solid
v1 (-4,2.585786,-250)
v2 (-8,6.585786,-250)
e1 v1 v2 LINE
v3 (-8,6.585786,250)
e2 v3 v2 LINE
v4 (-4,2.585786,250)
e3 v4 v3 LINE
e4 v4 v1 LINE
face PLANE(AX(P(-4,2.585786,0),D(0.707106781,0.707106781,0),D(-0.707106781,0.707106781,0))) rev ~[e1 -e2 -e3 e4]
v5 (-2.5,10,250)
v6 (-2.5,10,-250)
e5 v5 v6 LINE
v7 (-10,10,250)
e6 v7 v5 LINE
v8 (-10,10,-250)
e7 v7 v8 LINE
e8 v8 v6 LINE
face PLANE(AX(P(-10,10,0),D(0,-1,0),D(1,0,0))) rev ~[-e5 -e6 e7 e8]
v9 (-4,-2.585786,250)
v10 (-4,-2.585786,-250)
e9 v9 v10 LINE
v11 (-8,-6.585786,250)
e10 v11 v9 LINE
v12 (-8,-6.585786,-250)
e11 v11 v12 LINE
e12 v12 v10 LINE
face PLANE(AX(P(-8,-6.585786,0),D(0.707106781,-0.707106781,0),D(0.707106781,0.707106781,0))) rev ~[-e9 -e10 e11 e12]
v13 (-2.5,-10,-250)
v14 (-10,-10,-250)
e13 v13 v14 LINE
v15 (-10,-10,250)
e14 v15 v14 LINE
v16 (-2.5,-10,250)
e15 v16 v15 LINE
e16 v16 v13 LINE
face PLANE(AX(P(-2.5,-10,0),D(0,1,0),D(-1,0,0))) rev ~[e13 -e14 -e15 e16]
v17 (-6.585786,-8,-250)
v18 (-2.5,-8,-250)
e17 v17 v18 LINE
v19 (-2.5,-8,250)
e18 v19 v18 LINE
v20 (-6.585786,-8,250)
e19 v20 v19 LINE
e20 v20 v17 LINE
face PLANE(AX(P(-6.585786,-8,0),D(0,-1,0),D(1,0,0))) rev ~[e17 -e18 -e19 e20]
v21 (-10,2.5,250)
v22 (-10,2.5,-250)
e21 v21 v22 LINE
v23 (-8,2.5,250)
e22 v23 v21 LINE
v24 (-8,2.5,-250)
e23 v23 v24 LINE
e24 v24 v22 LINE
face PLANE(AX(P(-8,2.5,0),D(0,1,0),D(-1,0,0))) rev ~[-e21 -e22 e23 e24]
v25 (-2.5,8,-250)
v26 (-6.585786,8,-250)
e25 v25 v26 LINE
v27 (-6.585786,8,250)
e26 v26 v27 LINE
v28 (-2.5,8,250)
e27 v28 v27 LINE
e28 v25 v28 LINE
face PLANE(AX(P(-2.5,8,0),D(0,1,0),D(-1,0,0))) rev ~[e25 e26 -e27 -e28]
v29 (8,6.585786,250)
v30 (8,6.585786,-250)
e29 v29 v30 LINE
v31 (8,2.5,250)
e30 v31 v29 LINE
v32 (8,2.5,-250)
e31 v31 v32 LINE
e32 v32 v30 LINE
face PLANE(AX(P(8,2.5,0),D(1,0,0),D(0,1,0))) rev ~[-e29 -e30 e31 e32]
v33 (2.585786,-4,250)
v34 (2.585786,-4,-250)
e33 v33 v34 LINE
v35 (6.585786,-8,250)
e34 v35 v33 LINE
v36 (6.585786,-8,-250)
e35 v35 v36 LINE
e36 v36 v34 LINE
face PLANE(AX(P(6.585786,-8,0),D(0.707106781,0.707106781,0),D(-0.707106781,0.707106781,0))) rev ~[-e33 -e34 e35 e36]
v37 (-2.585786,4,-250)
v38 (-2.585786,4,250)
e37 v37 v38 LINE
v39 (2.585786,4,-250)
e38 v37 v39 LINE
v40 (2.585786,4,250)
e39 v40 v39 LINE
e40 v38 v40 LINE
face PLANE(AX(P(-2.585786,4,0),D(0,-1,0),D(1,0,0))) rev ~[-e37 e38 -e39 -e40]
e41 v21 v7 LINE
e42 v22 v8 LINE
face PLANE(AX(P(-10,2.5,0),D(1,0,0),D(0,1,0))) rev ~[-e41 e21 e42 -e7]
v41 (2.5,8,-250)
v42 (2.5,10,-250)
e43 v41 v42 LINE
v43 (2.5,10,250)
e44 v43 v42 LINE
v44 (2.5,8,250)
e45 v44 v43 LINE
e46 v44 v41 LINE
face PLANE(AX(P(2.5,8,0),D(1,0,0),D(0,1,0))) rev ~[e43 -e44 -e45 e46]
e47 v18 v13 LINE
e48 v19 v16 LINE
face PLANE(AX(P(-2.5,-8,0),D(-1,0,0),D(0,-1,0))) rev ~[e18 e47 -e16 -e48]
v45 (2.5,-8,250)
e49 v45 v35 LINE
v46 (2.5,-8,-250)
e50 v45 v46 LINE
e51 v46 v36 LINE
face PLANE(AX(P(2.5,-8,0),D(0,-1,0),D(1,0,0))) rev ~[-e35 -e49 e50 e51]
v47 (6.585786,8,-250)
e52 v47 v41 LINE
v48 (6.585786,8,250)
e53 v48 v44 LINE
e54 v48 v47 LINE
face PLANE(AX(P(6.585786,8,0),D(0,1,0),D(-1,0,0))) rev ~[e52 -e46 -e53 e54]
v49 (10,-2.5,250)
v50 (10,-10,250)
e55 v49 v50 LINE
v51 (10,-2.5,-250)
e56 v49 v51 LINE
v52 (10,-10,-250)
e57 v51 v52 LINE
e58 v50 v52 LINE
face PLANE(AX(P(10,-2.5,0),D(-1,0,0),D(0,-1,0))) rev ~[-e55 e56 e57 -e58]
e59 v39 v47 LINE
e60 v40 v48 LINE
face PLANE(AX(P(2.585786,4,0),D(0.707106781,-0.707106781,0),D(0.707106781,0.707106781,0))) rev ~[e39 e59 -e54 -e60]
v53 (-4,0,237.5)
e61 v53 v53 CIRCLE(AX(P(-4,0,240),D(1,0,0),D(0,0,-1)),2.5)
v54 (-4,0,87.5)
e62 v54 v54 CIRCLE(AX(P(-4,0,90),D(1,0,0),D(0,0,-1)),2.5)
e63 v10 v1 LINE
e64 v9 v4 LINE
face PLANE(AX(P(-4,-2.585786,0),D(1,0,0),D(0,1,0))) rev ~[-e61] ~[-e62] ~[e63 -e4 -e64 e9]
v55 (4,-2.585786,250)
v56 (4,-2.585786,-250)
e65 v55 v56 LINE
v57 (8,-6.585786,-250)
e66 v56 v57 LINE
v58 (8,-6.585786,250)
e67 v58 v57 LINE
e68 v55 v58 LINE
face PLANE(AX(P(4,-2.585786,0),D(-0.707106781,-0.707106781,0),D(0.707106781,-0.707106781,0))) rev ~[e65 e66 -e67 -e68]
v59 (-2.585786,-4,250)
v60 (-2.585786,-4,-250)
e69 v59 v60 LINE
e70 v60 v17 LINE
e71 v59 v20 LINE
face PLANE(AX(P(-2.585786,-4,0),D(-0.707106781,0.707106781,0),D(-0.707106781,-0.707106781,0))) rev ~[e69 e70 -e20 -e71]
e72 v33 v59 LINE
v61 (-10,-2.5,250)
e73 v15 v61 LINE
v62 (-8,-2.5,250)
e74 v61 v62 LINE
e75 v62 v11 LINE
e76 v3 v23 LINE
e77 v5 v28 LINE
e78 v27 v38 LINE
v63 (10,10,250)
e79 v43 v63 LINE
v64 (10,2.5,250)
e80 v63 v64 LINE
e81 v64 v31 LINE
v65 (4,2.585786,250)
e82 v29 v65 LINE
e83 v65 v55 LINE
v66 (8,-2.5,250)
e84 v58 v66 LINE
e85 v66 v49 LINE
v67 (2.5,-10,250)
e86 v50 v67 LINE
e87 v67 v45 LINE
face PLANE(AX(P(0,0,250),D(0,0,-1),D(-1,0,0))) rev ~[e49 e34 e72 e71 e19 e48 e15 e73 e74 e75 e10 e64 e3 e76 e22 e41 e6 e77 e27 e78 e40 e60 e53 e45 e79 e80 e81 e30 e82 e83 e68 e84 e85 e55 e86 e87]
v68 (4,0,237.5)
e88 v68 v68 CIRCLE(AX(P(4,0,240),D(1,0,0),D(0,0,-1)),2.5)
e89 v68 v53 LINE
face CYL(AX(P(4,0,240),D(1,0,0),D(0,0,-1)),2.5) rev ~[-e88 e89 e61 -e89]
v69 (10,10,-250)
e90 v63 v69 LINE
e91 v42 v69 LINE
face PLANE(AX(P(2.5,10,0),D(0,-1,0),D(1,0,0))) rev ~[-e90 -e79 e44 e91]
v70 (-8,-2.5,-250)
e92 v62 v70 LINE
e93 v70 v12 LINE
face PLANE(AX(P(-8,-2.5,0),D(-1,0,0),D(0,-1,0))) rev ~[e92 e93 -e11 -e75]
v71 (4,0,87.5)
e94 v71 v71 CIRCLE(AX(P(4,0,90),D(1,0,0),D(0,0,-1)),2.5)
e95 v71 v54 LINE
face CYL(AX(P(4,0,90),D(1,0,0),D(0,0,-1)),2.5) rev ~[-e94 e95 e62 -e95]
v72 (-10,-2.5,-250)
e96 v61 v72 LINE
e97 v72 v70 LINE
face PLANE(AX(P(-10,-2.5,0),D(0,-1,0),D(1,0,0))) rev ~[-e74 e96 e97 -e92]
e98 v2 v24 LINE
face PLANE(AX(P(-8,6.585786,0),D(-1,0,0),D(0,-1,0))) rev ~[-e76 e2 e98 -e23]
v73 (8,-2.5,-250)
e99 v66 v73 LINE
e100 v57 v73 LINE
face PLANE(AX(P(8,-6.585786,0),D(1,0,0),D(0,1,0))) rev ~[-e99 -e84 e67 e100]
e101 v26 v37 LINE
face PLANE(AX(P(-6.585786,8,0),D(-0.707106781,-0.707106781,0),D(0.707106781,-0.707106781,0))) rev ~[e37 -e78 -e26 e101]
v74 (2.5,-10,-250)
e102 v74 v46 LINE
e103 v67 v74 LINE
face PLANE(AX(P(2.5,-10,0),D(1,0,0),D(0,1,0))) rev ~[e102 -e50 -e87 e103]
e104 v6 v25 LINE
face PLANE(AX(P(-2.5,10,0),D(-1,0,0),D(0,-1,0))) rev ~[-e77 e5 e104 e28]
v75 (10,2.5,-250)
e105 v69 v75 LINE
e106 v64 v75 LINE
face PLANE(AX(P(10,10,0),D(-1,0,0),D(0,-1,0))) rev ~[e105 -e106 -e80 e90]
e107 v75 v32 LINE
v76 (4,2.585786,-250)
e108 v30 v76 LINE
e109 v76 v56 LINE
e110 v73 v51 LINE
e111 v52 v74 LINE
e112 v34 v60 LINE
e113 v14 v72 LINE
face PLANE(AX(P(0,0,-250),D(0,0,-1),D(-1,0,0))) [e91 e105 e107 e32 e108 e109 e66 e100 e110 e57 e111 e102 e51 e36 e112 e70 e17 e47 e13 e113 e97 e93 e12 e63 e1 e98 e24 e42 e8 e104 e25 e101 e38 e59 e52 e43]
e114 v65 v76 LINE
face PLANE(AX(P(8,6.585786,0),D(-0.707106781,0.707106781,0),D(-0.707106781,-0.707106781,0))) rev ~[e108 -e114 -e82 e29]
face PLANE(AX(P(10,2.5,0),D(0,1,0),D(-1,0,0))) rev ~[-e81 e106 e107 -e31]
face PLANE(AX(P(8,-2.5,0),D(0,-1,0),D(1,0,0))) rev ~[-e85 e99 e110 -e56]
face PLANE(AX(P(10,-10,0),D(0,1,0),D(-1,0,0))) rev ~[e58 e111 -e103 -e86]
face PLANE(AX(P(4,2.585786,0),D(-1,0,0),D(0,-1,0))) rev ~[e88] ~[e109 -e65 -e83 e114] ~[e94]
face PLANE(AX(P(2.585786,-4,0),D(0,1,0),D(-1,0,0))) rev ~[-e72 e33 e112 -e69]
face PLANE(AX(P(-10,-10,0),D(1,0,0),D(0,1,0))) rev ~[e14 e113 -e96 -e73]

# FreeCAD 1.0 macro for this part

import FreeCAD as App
import Part
import Sketcher

V = App.Vector
Q = App.Units.Quantity


def add_polygon(sketch, points):
    """Adds a closed chain of lines whose ends are joined by coincident constraints."""
    first, n = sketch.GeometryCount, len(points)
    for a, b in zip(points, points[1:] + points[:1]):
        sketch.addGeometry(Part.LineSegment(App.Vector(*a, 0), App.Vector(*b, 0)), False)
    for i in range(n):
        sketch.addConstraint(Sketcher.Constraint("Coincident", first + i, 2, first + (i + 1) % n, 1))

doc = App.newDocument("Part")
body = doc.addObject("PartDesign::Body", "Body")

# Sketch on XY plane
sketch1 = doc.addObject("Sketcher::SketchObject", "Sketch")
body.addObject(sketch1)
sketch1.AttachmentSupport = (doc.XY_Plane, [""])
sketch1.MapMode = "FlatFace"
add_polygon(sketch1, [(2.6, 4), (-2.6, 4), (-6.6, 8), (-2.5, 8), (-2.5, 10), (-10, 10), (-10, 2.5), (-8, 2.5), (-8, 6.6), (-4, 2.6), (-4, -2.6), (-8, -6.6), (-8, -2.5), (-10, -2.5), (-10, -10), (-2.5, -10), (-2.5, -8), (-6.6, -8), (-2.6, -4), (2.6, -4), (6.6, -8), (2.5, -8), (2.5, -10), (10, -10), (10, -2.5), (8, -2.5), (8, -6.6), (4, -2.6), (4, 2.6), (8, 6.6), (8, 2.5), (10, 2.5), (10, 10), (2.5, 10), (2.5, 8), (6.6, 8)])  # lines 0-35
sketch1.addConstraint(Sketcher.Constraint("Horizontal", 0))
sketch1.addConstraint(Sketcher.Constraint("Horizontal", 2))
sketch1.addConstraint(Sketcher.Constraint("Vertical", 3))
sketch1.addConstraint(Sketcher.Constraint("Horizontal", 4))
sketch1.addConstraint(Sketcher.Constraint("Vertical", 5))
sketch1.addConstraint(Sketcher.Constraint("Horizontal", 6))
sketch1.addConstraint(Sketcher.Constraint("Vertical", 7))
sketch1.addConstraint(Sketcher.Constraint("Vertical", 9))
sketch1.addConstraint(Sketcher.Constraint("Vertical", 11))
sketch1.addConstraint(Sketcher.Constraint("Horizontal", 12))
sketch1.addConstraint(Sketcher.Constraint("Vertical", 13))
sketch1.addConstraint(Sketcher.Constraint("Horizontal", 14))
sketch1.addConstraint(Sketcher.Constraint("Vertical", 15))
sketch1.addConstraint(Sketcher.Constraint("Horizontal", 16))
sketch1.addConstraint(Sketcher.Constraint("Horizontal", 18))
sketch1.addConstraint(Sketcher.Constraint("Horizontal", 20))
sketch1.addConstraint(Sketcher.Constraint("Vertical", 21))
sketch1.addConstraint(Sketcher.Constraint("Horizontal", 22))
sketch1.addConstraint(Sketcher.Constraint("Vertical", 23))
sketch1.addConstraint(Sketcher.Constraint("Horizontal", 24))
sketch1.addConstraint(Sketcher.Constraint("Vertical", 25))
sketch1.addConstraint(Sketcher.Constraint("Vertical", 27))
sketch1.addConstraint(Sketcher.Constraint("Vertical", 29))
sketch1.addConstraint(Sketcher.Constraint("Horizontal", 30))
sketch1.addConstraint(Sketcher.Constraint("Vertical", 31))
sketch1.addConstraint(Sketcher.Constraint("Horizontal", 32))
sketch1.addConstraint(Sketcher.Constraint("Vertical", 33))
sketch1.addConstraint(Sketcher.Constraint("Horizontal", 34))
sketch1.addConstraint(Sketcher.Constraint("Symmetric", 0, 2, 18, 2, -1, 1))
sketch1.addConstraint(Sketcher.Constraint("Symmetric", 1, 2, 19, 2, -1, 1))
sketch1.addConstraint(Sketcher.Constraint("Symmetric", 3, 2, 21, 2, -1, 1))
sketch1.addConstraint(Sketcher.Constraint("Symmetric", 5, 2, 23, 2, -1, 1))
sketch1.addConstraint(Sketcher.Constraint("Symmetric", 7, 2, 25, 2, -1, 1))
sketch1.addConstraint(Sketcher.Constraint("Symmetric", 8, 2, 26, 2, -1, 1))
sketch1.addConstraint(Sketcher.Constraint("Symmetric", 10, 2, 28, 2, -1, 1))
sketch1.addConstraint(Sketcher.Constraint("Symmetric", 12, 2, 30, 2, -1, 1))
sketch1.addConstraint(Sketcher.Constraint("Symmetric", 14, 2, 32, 2, -1, 1))
sketch1.addConstraint(Sketcher.Constraint("Symmetric", 16, 2, 34, 2, -1, 1))
sketch1.addConstraint(Sketcher.Constraint("Symmetric", 16, 2, 19, 2, -2))
sketch1.addConstraint(Sketcher.Constraint("Symmetric", 14, 2, 21, 2, -2))
sketch1.addConstraint(Sketcher.Constraint("Symmetric", 12, 2, 23, 2, -2))
sketch1.addConstraint(Sketcher.Constraint("Symmetric", 10, 2, 25, 2, -2))
sketch1.addConstraint(Sketcher.Constraint("Parallel", 1, 8))
sketch1.addConstraint(Sketcher.Constraint("Perpendicular", 8, 10))
sketch1.addConstraint(Sketcher.Constraint("Parallel", 10, 17))
sketch1.addConstraint(Sketcher.Constraint("Perpendicular", 26, 28))
sketch1.addConstraint(Sketcher.Constraint("Parallel", 28, 35))
sketch1.addConstraint(Sketcher.Constraint("Horizontal", 9, 2, 26, 2))
sketch1.addConstraint(Sketcher.Constraint("Equal", 30, 3))
sketch1.addConstraint(Sketcher.Constraint("Equal", 32, 5))
sketch1.addConstraint(Sketcher.Constraint("Equal", 34, 7))
sketch1.addConstraint(Sketcher.Constraint("Equal", 18, 9))
sketch1.addConstraint(Sketcher.Constraint("Equal", 1, 8))
sketch1.addConstraint(Sketcher.Constraint("DistanceX", 6, 1, 6, 2, Q("2 mm")))
sketch1.addConstraint(Sketcher.Constraint("DistanceX", 4, 2, 4, 1, Q("7.5 mm")))
sketch1.addConstraint(Sketcher.Constraint("DistanceY", -1, 1, 0, 2, Q("4 mm")))
sketch1.addConstraint(Sketcher.Constraint("DistanceY", -1, 1, 1, 2, Q("8 mm")))
sketch1.addConstraint(Sketcher.Constraint("DistanceX", 0, 2, 0, 1, Q("5.171573 mm")))
pad1 = doc.addObject("PartDesign::Pad", "Pad")
body.addObject(pad1)
pad1.Profile = sketch1
pad1.Length = 500
pad1.Midplane = True

# Sketch on YZ plane
sketch2 = doc.addObject("Sketcher::SketchObject", "Sketch001")
body.addObject(sketch2)
sketch2.AttachmentSupport = (doc.YZ_Plane, [""])
sketch2.MapMode = "FlatFace"
sketch2.AttachmentOffset = App.Placement(V(0, 0, 4), App.Rotation())
sketch2.addGeometry(Part.Circle(V(0, 240, 0), V(0, 0, 1), 2.5), False)
sketch2.addGeometry(Part.Circle(V(0, 90, 0), V(0, 0, 1), 2.5), False)
sketch2.addConstraint(Sketcher.Constraint("Equal", 0, 1))
sketch2.addConstraint(Sketcher.Constraint("PointOnObject", 0, 3, -2))
sketch2.addConstraint(Sketcher.Constraint("PointOnObject", 1, 3, -2))
sketch2.addConstraint(Sketcher.Constraint("Diameter", 0, Q("5 mm")))
sketch2.addConstraint(Sketcher.Constraint("DistanceY", -1, 1, 0, 3, Q("240 mm")))
sketch2.addConstraint(Sketcher.Constraint("DistanceY", -1, 1, 1, 3, Q("90 mm")))
pocket1 = doc.addObject("PartDesign::Pocket", "Pocket")
body.addObject(pocket1)
pocket1.Profile = sketch2
pocket1.Length = 10

doc.recompute()
